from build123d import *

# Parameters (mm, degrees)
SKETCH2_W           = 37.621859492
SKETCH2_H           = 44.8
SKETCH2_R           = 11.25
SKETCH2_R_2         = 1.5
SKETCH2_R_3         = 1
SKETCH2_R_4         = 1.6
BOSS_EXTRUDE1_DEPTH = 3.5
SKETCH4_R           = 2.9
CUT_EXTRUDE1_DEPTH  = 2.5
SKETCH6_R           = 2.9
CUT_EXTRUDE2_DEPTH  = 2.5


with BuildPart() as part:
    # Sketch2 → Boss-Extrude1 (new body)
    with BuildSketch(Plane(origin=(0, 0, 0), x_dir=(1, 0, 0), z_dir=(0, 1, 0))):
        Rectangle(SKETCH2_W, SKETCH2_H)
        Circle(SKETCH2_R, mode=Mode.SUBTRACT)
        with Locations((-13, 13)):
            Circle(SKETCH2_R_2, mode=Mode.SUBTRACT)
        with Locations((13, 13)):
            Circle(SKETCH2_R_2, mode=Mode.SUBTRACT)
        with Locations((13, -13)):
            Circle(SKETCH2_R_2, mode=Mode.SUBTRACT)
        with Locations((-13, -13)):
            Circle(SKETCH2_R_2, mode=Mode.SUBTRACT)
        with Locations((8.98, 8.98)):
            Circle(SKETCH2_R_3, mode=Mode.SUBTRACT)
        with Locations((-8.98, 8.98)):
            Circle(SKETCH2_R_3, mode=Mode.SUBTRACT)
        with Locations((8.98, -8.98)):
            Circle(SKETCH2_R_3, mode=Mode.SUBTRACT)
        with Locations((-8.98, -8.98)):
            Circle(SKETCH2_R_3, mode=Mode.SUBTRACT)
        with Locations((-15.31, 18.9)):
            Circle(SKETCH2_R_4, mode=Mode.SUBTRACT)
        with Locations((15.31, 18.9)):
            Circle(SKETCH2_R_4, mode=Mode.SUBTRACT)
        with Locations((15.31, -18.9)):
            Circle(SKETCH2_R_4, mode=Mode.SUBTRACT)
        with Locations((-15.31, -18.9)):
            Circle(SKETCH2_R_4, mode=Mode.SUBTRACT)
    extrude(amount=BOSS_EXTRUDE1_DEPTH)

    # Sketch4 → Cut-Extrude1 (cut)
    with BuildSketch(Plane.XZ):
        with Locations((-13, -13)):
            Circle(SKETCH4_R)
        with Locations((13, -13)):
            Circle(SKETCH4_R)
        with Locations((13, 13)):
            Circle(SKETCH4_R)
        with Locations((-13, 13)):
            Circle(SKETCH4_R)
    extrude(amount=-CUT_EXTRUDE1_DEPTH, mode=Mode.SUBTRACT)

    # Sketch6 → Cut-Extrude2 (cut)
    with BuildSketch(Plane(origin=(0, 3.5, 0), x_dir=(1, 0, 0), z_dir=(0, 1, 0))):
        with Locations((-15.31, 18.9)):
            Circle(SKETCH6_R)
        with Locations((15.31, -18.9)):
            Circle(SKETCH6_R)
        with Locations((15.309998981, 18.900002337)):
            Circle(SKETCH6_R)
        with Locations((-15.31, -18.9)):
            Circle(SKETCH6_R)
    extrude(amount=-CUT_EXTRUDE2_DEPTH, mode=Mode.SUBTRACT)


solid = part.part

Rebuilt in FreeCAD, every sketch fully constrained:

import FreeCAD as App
import Part
import Sketcher
from FreeCAD import Vector

doc = App.newDocument("Part")
body = doc.addObject("PartDesign::Body", "Body")

# Sketch on XZ plane
sketch1 = body.newObject("Sketcher::SketchObject", "Sketch")
sketch1.AttachmentSupport = (doc.getObject("XZ_Plane"), [""])
sketch1.MapMode = "FlatFace"
sketch1.addGeometry([
    Part.LineSegment(Vector(-18.8, -22.4, 0), Vector(-18.8, 22.4, 0)),  # 0
    Part.LineSegment(Vector(-18.8, 22.4, 0), Vector(18.8, 22.4, 0)),  # 1
    Part.LineSegment(Vector(18.8, 22.4, 0), Vector(18.8, -22.4, 0)),  # 2
    Part.LineSegment(Vector(18.8, -22.4, 0), Vector(-18.8, -22.4, 0)),  # 3
    Part.Circle(Vector(-15.3, 18.9, 0), Vector(0, 0, 1), 1.6),  # 4
    Part.Circle(Vector(-13, 13, 0), Vector(0, 0, 1), 1.5),  # 5
    Part.Circle(Vector(-9, 9, 0), Vector(0, 0, 1), 1),  # 6
    Part.Circle(Vector(15.3, 18.9, 0), Vector(0, 0, 1), 1.6),  # 7
    Part.Circle(Vector(13, 13, 0), Vector(0, 0, 1), 1.5),  # 8
    Part.Circle(Vector(9, 9, 0), Vector(0, 0, 1), 1),  # 9
    Part.Circle(Vector(-9, -9, 0), Vector(0, 0, 1), 1),  # 10
    Part.Circle(Vector(-13, -13, 0), Vector(0, 0, 1), 1.5),  # 11
    Part.Circle(Vector(-15.3, -18.9, 0), Vector(0, 0, 1), 1.6),  # 12
    Part.Circle(Vector(0, 0, 0), Vector(0, 0, 1), 11.2),  # 13
    Part.Circle(Vector(9, -9, 0), Vector(0, 0, 1), 1),  # 14
    Part.Circle(Vector(13, -13, 0), Vector(0, 0, 1), 1.5),  # 15
    Part.Circle(Vector(15.3, -18.9, 0), Vector(0, 0, 1), 1.6),  # 16
], False)
sketch1.addConstraint([
    Sketcher.Constraint("Coincident", 0, 2, 1, 1),
    Sketcher.Constraint("Coincident", 1, 2, 2, 1),
    Sketcher.Constraint("Coincident", 2, 2, 3, 1),
    Sketcher.Constraint("Coincident", 3, 2, 0, 1),
    Sketcher.Constraint("Vertical", 0),
    Sketcher.Constraint("Horizontal", 1),
    Sketcher.Constraint("Vertical", 2),
    Sketcher.Constraint("Horizontal", 3),
    Sketcher.Constraint("Coincident", 13, 3, -1, 1),
    Sketcher.Constraint("Equal", 4, 7),
    Sketcher.Constraint("Equal", 5, 8),
    Sketcher.Constraint("Equal", 6, 9),
    Sketcher.Constraint("Equal", 9, 10),
    Sketcher.Constraint("Equal", 8, 11),
    Sketcher.Constraint("Equal", 7, 12),
    Sketcher.Constraint("Equal", 10, 14),
    Sketcher.Constraint("Equal", 11, 15),
    Sketcher.Constraint("Equal", 12, 16),
    Sketcher.Constraint("Symmetric", 9, 3, 10, 3, -1, 1),
    Sketcher.Constraint("Symmetric", 8, 3, 11, 3, -1, 1),
    Sketcher.Constraint("Symmetric", 7, 3, 12, 3, -1, 1),
    Sketcher.Constraint("Symmetric", 6, 3, 14, 3, -1, 1),
    Sketcher.Constraint("Symmetric", 5, 3, 15, 3, -1, 1),
    Sketcher.Constraint("Symmetric", 4, 3, 16, 3, -1, 1),
    Sketcher.Constraint("Symmetric", 0, 2, 2, 2, -1, 1),
    Sketcher.Constraint("Symmetric", 4, 3, 7, 3, -2),
    Sketcher.Constraint("Symmetric", 5, 3, 8, 3, -2),
    Sketcher.Constraint("Symmetric", 6, 3, 9, 3, -2),
    Sketcher.Constraint("Diameter", 5, 3.0),
    Sketcher.Constraint("Diameter", 6, 2.0),
    Sketcher.Constraint("Diameter", 4, 3.2),
    Sketcher.Constraint("Diameter", 13, 22.5),
    Sketcher.Constraint("DistanceY", 0, 1, 0, 2, 44.8),
    Sketcher.Constraint("DistanceX", 5, 3, -1, 1, 13.0),
    Sketcher.Constraint("DistanceY", -1, 1, 5, 3, 13.0),
    Sketcher.Constraint("DistanceY", -1, 1, 4, 3, 18.9),
    Sketcher.Constraint("DistanceX", 4, 3, -1, 1, 15.31),
    Sketcher.Constraint("DistanceX", 6, 3, -1, 1, 8.98),
    Sketcher.Constraint("DistanceY", -1, 1, 6, 3, 8.98),
    Sketcher.Constraint("DistanceX", 1, 1, 1, 2, 37.621859),
])
pad1 = body.newObject("PartDesign::Pad", "Pad")
pad1.Profile = sketch1
pad1.Length = 3.5
pad1.Reversed = True

# Sketch on XZ plane
sketch2 = body.newObject("Sketcher::SketchObject", "Sketch001")
sketch2.AttachmentSupport = (doc.getObject("XZ_Plane"), [""])
sketch2.MapMode = "FlatFace"
sketch2.addGeometry([
    Part.Circle(Vector(-13, -13, 0), Vector(0, 0, 1), 2.9),
    Part.Circle(Vector(13, -13, 0), Vector(0, 0, 1), 2.9),
    Part.Circle(Vector(13, 13, 0), Vector(0, 0, 1), 2.9),
    Part.Circle(Vector(-13, 13, 0), Vector(0, 0, 1), 2.9),
], False)
sketch2.addConstraint([
    Sketcher.Constraint("Equal", 0, 1),
    Sketcher.Constraint("Equal", 1, 2),
    Sketcher.Constraint("Equal", 2, 3),
    Sketcher.Constraint("Symmetric", 0, 3, 2, 3, -1, 1),
    Sketcher.Constraint("Symmetric", 1, 3, 3, 3, -1, 1),
    Sketcher.Constraint("Symmetric", 0, 3, 1, 3, -2),
    Sketcher.Constraint("Diameter", 0, 5.8),
    Sketcher.Constraint("DistanceX", 0, 3, -1, 1, 13.0),
    Sketcher.Constraint("DistanceY", 0, 3, -1, 1, 13.0),
])
pocket1 = body.newObject("PartDesign::Pocket", "Pocket")
pocket1.Profile = sketch2
pocket1.Length = 2.5

# Sketch on XZ plane
sketch3 = body.newObject("Sketcher::SketchObject", "Sketch002")
sketch3.AttachmentSupport = (doc.getObject("XZ_Plane"), [""])
sketch3.MapMode = "FlatFace"
sketch3.AttachmentOffset = App.Placement(Vector(0, 0, -3.5), App.Rotation())
sketch3.addGeometry([
    Part.Circle(Vector(-15.3, -18.9, 0), Vector(0, 0, 1), 2.9),
    Part.Circle(Vector(15.3, 18.9, 0), Vector(0, 0, 1), 2.9),
    Part.Circle(Vector(15.3, -18.9, 0), Vector(0, 0, 1), 2.9),
    Part.Circle(Vector(-15.3, 18.9, 0), Vector(0, 0, 1), 2.9),
], False)
sketch3.addConstraint([
    Sketcher.Constraint("Equal", 0, 1),
    Sketcher.Constraint("Equal", 1, 2),
    Sketcher.Constraint("Equal", 2, 3),
    Sketcher.Constraint("Symmetric", 0, 3, 1, 3, -1, 1),
    Sketcher.Constraint("Symmetric", 2, 3, 3, 3, -1, 1),
    Sketcher.Constraint("Symmetric", 0, 3, 2, 3, -2),
    Sketcher.Constraint("Diameter", 0, 5.8),
    Sketcher.Constraint("DistanceY", 0, 3, -1, 1, 18.9),
    Sketcher.Constraint("DistanceX", 0, 3, -1, 1, 15.31),
])
pocket2 = body.newObject("PartDesign::Pocket", "Pocket001")
pocket2.Profile = sketch3
pocket2.Length = 2.5
pocket2.Reversed = True

doc.recompute()
